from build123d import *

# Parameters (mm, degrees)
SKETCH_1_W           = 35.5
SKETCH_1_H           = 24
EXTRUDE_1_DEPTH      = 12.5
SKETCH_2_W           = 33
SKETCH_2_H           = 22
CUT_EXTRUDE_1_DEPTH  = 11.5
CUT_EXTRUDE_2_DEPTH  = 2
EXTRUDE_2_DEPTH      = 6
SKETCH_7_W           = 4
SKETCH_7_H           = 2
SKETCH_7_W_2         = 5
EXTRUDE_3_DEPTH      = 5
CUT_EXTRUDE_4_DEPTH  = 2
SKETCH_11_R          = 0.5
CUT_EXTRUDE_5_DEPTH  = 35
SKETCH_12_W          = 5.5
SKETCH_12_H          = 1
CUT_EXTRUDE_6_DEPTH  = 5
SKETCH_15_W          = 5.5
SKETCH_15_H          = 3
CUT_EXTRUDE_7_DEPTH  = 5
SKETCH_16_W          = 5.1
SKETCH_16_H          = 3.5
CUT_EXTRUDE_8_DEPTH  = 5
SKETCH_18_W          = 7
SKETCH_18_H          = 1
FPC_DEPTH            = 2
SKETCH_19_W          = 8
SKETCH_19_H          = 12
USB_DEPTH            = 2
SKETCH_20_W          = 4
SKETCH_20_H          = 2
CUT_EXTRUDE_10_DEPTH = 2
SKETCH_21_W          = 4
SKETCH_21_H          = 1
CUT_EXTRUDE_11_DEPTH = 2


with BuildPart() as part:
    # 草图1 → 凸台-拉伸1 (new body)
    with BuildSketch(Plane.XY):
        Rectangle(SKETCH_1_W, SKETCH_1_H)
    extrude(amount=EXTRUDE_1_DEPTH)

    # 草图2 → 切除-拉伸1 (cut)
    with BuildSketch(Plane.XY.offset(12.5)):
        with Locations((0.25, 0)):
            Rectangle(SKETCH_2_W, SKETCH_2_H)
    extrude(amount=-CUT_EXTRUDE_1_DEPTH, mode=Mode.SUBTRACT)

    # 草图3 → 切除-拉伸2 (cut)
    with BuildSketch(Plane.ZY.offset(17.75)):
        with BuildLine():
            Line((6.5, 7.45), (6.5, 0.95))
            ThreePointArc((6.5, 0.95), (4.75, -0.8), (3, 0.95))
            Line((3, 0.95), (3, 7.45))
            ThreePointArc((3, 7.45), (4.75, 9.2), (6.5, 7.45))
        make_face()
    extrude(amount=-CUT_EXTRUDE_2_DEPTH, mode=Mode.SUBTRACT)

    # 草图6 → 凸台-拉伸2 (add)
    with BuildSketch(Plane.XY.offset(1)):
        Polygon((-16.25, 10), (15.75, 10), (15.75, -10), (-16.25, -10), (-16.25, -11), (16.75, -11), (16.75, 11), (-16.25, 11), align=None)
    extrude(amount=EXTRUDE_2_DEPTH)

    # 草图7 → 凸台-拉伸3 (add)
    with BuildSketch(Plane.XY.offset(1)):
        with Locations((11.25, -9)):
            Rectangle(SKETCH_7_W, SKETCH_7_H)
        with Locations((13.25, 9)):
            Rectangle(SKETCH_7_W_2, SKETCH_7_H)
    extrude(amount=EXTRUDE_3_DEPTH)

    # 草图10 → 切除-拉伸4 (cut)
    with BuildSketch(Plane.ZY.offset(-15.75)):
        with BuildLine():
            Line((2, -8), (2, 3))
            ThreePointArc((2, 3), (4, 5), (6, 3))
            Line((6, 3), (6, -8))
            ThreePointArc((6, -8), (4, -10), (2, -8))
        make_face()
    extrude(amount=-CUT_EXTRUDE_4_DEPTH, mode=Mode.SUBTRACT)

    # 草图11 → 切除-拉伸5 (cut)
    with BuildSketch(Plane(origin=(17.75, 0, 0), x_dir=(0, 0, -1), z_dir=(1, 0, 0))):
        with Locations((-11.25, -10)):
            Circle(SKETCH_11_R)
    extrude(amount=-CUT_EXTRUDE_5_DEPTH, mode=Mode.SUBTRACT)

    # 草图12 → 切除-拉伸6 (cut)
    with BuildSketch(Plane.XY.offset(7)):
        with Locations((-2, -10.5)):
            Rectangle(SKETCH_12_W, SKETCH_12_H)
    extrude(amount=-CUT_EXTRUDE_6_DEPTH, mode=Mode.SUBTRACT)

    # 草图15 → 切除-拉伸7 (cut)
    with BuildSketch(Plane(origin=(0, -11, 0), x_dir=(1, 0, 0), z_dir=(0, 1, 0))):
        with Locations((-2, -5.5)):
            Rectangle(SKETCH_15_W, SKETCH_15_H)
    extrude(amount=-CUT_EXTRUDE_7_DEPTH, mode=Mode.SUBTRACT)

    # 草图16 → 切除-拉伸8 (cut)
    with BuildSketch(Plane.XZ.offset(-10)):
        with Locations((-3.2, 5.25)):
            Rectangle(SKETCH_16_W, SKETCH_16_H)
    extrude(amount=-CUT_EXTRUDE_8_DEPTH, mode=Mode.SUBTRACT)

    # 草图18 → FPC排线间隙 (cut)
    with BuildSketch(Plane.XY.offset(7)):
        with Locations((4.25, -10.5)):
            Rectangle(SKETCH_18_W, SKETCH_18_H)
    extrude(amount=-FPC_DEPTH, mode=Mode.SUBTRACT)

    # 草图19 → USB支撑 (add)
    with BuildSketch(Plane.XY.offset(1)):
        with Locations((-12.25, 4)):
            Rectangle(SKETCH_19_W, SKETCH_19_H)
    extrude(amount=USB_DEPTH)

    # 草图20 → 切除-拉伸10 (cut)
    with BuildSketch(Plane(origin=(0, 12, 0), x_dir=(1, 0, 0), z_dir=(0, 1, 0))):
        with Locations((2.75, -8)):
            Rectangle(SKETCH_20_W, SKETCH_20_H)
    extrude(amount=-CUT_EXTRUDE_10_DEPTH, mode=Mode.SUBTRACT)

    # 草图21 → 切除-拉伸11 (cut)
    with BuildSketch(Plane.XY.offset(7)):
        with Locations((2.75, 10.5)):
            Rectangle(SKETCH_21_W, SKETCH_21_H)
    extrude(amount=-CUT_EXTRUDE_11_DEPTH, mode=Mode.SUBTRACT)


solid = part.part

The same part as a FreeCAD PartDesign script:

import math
import FreeCAD as App
import Part
import Sketcher

V = App.Vector


def add_polygon(sketch, points):
    """Adds a closed chain of lines whose ends are joined by coincident constraints."""
    first, n = sketch.GeometryCount, len(points)
    for a, b in zip(points, points[1:] + points[:1]):
        sketch.addGeometry(Part.LineSegment(App.Vector(*a, 0), App.Vector(*b, 0)), False)
    for i in range(n):
        sketch.addConstraint(Sketcher.Constraint("Coincident", first + i, 2, first + (i + 1) % n, 1))

doc = App.newDocument("Part")
body = doc.addObject("PartDesign::Body", "Body")

sketch1 = body.newObject("Sketcher::SketchObject", "Sketch")
sketch1.AttachmentSupport = (doc.getObject("XY_Plane"), [""])
sketch1.MapMode = "FlatFace"
add_polygon(sketch1, [(-18, 12), (-18, -12), (18, -12), (18, 12)])
sketch1.addConstraint(Sketcher.Constraint("Vertical", 0))
sketch1.addConstraint(Sketcher.Constraint("Horizontal", 1))
sketch1.addConstraint(Sketcher.Constraint("Vertical", 2))
sketch1.addConstraint(Sketcher.Constraint("Horizontal", 3))
sketch1.addConstraint(Sketcher.Constraint("Symmetric", 0, 2, 2, 2, -1, 1))
sketch1.addConstraint(Sketcher.Constraint("DistanceY", 0, 2, 0, 1, 24.0))
sketch1.addConstraint(Sketcher.Constraint("DistanceX", 1, 1, 1, 2, 35.5))
pad1 = body.newObject("PartDesign::Pad", "Pad")
pad1.Profile = sketch1
pad1.Length = 12.5

sketch2 = body.newObject("Sketcher::SketchObject", "Sketch001")
sketch2.AttachmentSupport = (doc.getObject("XY_Plane"), [""])
sketch2.MapMode = "FlatFace"
sketch2.AttachmentOffset = App.Placement(V(0, 0, 12.5), App.Rotation())
add_polygon(sketch2, [(-16, 11), (-16, -11), (17, -11), (17, 11)])
sketch2.addConstraint(Sketcher.Constraint("Vertical", 0))
sketch2.addConstraint(Sketcher.Constraint("Horizontal", 1))
sketch2.addConstraint(Sketcher.Constraint("Vertical", 2))
sketch2.addConstraint(Sketcher.Constraint("Horizontal", 3))
sketch2.addConstraint(Sketcher.Constraint("DistanceX", 1, 1, 1, 2, 33.0))
sketch2.addConstraint(Sketcher.Constraint("DistanceY", 0, 2, 0, 1, 22.0))
sketch2.addConstraint(Sketcher.Constraint("DistanceY", 0, 2, -1, 1, 11.0))
sketch2.addConstraint(Sketcher.Constraint("DistanceX", 0, 2, -1, 1, 16.25))
pocket1 = body.newObject("PartDesign::Pocket", "Pocket")
pocket1.Profile = sketch2
pocket1.Length = 11.5

sketch3 = body.newObject("Sketcher::SketchObject", "Sketch002")
sketch3.AttachmentSupport = (doc.getObject("YZ_Plane"), [""])
sketch3.MapMode = "FlatFace"
sketch3.AttachmentOffset = App.Placement(V(0, 0, -17.75), App.Rotation())
sketch3.addGeometry(Part.LineSegment(V(0.9, 6.5, 0), V(7.5, 6.5, 0)), False)
sketch3.addGeometry(Part.ArcOfCircle(Part.Circle(V(7.5, 4.8, 0), V(0, 0, 1), 1.8), math.radians(-90), math.radians(90)), False)
sketch3.addGeometry(Part.LineSegment(V(7.5, 3, 0), V(0.9, 3, 0)), False)
sketch3.addGeometry(Part.ArcOfCircle(Part.Circle(V(0.9, 4.8, 0), V(0, 0, 1), 1.8), math.radians(90), math.radians(270)), False)
sketch3.addConstraint(Sketcher.Constraint("Tangent", 0, 2, 1, 2))
sketch3.addConstraint(Sketcher.Constraint("Tangent", 1, 1, 2, 1))
sketch3.addConstraint(Sketcher.Constraint("Tangent", 2, 2, 3, 2))
sketch3.addConstraint(Sketcher.Constraint("Tangent", 3, 1, 0, 1))
sketch3.addConstraint(Sketcher.Constraint("Horizontal", 0))
sketch3.addConstraint(Sketcher.Constraint("Horizontal", 2))
sketch3.addConstraint(Sketcher.Constraint("Radius", 1, 1.75))
sketch3.addConstraint(Sketcher.Constraint("DistanceX", 0, 1, 0, 2, 6.5))
sketch3.addConstraint(Sketcher.Constraint("DistanceY", -1, 1, 1, 1, 3.0))
sketch3.addConstraint(Sketcher.Constraint("DistanceX", -1, 1, 1, 3, 7.45))
pocket2 = body.newObject("PartDesign::Pocket", "Pocket001")
pocket2.Profile = sketch3
pocket2.Length = 2
pocket2.Reversed = True

sketch4 = body.newObject("Sketcher::SketchObject", "Sketch003")
sketch4.AttachmentSupport = (doc.getObject("XY_Plane"), [""])
sketch4.MapMode = "FlatFace"
sketch4.AttachmentOffset = App.Placement(V(0, 0, 1), App.Rotation())
add_polygon(sketch4, [(-16.2, 10), (15.8, 10), (15.8, -10), (-16.2, -10), (-16.2, -11), (16.8, -11), (16.8, 11), (-16.2, 11)])
sketch4.addConstraint(Sketcher.Constraint("Horizontal", 0))
sketch4.addConstraint(Sketcher.Constraint("Vertical", 1))
sketch4.addConstraint(Sketcher.Constraint("Horizontal", 2))
sketch4.addConstraint(Sketcher.Constraint("Vertical", 3))
sketch4.addConstraint(Sketcher.Constraint("Horizontal", 4))
sketch4.addConstraint(Sketcher.Constraint("Vertical", 5))
sketch4.addConstraint(Sketcher.Constraint("Horizontal", 6))
sketch4.addConstraint(Sketcher.Constraint("Vertical", 7))
sketch4.addConstraint(Sketcher.Constraint("Symmetric", 3, 2, 6, 2, -1))
sketch4.addConstraint(Sketcher.Constraint("Equal", 3, 7))
sketch4.addConstraint(Sketcher.Constraint("DistanceX", 0, 1, 0, 2, 32.0))
sketch4.addConstraint(Sketcher.Constraint("DistanceX", 4, 1, 4, 2, 33.0))
sketch4.addConstraint(Sketcher.Constraint("DistanceY", 1, 2, 1, 1, 20.0))
sketch4.addConstraint(Sketcher.Constraint("DistanceY", 3, 2, 3, 1, 1.0))
sketch4.addConstraint(Sketcher.Constraint("DistanceX", -1, 1, 0, 2, 15.75))
pad2 = body.newObject("PartDesign::Pad", "Pad001")
pad2.Profile = sketch4
pad2.Length = 6

sketch5 = body.newObject("Sketcher::SketchObject", "Sketch004")
sketch5.AttachmentSupport = (doc.getObject("XY_Plane"), [""])
sketch5.MapMode = "FlatFace"
sketch5.AttachmentOffset = App.Placement(V(0, 0, 1), App.Rotation())
add_polygon(sketch5, [(9.2, -8), (9.2, -10), (13.2, -10), (13.2, -8)])
add_polygon(sketch5, [(10.8, 10), (10.8, 8), (15.8, 8), (15.8, 10)])
sketch5.addConstraint(Sketcher.Constraint("Vertical", 0))
sketch5.addConstraint(Sketcher.Constraint("Horizontal", 1))
sketch5.addConstraint(Sketcher.Constraint("Vertical", 2))
sketch5.addConstraint(Sketcher.Constraint("Horizontal", 3))
sketch5.addConstraint(Sketcher.Constraint("Vertical", 4))
sketch5.addConstraint(Sketcher.Constraint("Horizontal", 5))
sketch5.addConstraint(Sketcher.Constraint("Vertical", 6))
sketch5.addConstraint(Sketcher.Constraint("Horizontal", 7))
sketch5.addConstraint(Sketcher.Constraint("Equal", 2, 4))
sketch5.addConstraint(Sketcher.Constraint("DistanceX", 1, 1, 1, 2, 4.0))
sketch5.addConstraint(Sketcher.Constraint("DistanceX", 5, 1, 5, 2, 5.0))
sketch5.addConstraint(Sketcher.Constraint("DistanceY", 0, 2, 0, 1, 2.0))
sketch5.addConstraint(Sketcher.Constraint("DistanceY", 0, 2, -1, 1, 10.0))
sketch5.addConstraint(Sketcher.Constraint("DistanceY", -1, 1, 4, 2, 8.0))
sketch5.addConstraint(Sketcher.Constraint("DistanceX", 3, 2, 4, 2, 1.5))
sketch5.addConstraint(Sketcher.Constraint("DistanceX", -1, 1, 0, 2, 9.25))
pad3 = body.newObject("PartDesign::Pad", "Pad002")
pad3.Profile = sketch5
pad3.Length = 5

sketch6 = body.newObject("Sketcher::SketchObject", "Sketch005")
sketch6.AttachmentSupport = (doc.getObject("YZ_Plane"), [""])
sketch6.MapMode = "FlatFace"
sketch6.AttachmentOffset = App.Placement(V(0, 0, 15.75), App.Rotation())
sketch6.addGeometry(Part.LineSegment(V(3, 2, 0), V(-8, 2, 0)), False)
sketch6.addGeometry(Part.ArcOfCircle(Part.Circle(V(-8, 4, 0), V(0, 0, 1), 2), math.radians(90), math.radians(270)), False)
sketch6.addGeometry(Part.LineSegment(V(-8, 6, 0), V(3, 6, 0)), False)
sketch6.addGeometry(Part.ArcOfCircle(Part.Circle(V(3, 4, 0), V(0, 0, 1), 2), math.radians(-90), math.radians(90)), False)
sketch6.addConstraint(Sketcher.Constraint("Tangent", 0, 2, 1, 2))
sketch6.addConstraint(Sketcher.Constraint("Tangent", 1, 1, 2, 1))
sketch6.addConstraint(Sketcher.Constraint("Tangent", 2, 2, 3, 2))
sketch6.addConstraint(Sketcher.Constraint("Tangent", 3, 1, 0, 1))
sketch6.addConstraint(Sketcher.Constraint("Horizontal", 0))
sketch6.addConstraint(Sketcher.Constraint("Horizontal", 2))
sketch6.addConstraint(Sketcher.Constraint("Radius", 1, 2.0))
sketch6.addConstraint(Sketcher.Constraint("DistanceX", 0, 2, 0, 1, 11.0))
sketch6.addConstraint(Sketcher.Constraint("DistanceX", 1, 3, -1, 1, 8.0))
sketch6.addConstraint(Sketcher.Constraint("DistanceY", -1, 1, 1, 3, 4.0))
pocket3 = body.newObject("PartDesign::Pocket", "Pocket002")
pocket3.Profile = sketch6
pocket3.Length = 2
pocket3.Reversed = True

sketch7 = body.newObject("Sketcher::SketchObject", "Sketch006")
sketch7.AttachmentSupport = (doc.getObject("YZ_Plane"), [""])
sketch7.MapMode = "FlatFace"
sketch7.AttachmentOffset = App.Placement(V(0, 0, 17.75), App.Rotation())
sketch7.addGeometry(Part.Circle(V(-10, 11.2, 0), V(0, 0, 1), 0.5), False)
sketch7.addConstraint(Sketcher.Constraint("Diameter", 0, 1.0))
sketch7.addConstraint(Sketcher.Constraint("DistanceX", 0, 3, -1, 1, 10.0))
sketch7.addConstraint(Sketcher.Constraint("DistanceY", -1, 1, 0, 3, 11.25))
pocket4 = body.newObject("PartDesign::Pocket", "Pocket003")
pocket4.Profile = sketch7
pocket4.Length = 35

sketch8 = body.newObject("Sketcher::SketchObject", "Sketch007")
sketch8.AttachmentSupport = (doc.getObject("XY_Plane"), [""])
sketch8.MapMode = "FlatFace"
sketch8.AttachmentOffset = App.Placement(V(0, 0, 7), App.Rotation())
add_polygon(sketch8, [(-4.8, -10), (-4.8, -11), (0.8, -11), (0.8, -10)])
sketch8.addConstraint(Sketcher.Constraint("Vertical", 0))
sketch8.addConstraint(Sketcher.Constraint("Horizontal", 1))
sketch8.addConstraint(Sketcher.Constraint("Vertical", 2))
sketch8.addConstraint(Sketcher.Constraint("Horizontal", 3))
sketch8.addConstraint(Sketcher.Constraint("DistanceY", 0, 2, 0, 1, 1.0))
sketch8.addConstraint(Sketcher.Constraint("DistanceX", 1, 1, 1, 2, 5.5))
sketch8.addConstraint(Sketcher.Constraint("DistanceY", 0, 2, -1, 1, 11.0))
sketch8.addConstraint(Sketcher.Constraint("DistanceX", 0, 2, -1, 1, 4.75))
pocket5 = body.newObject("PartDesign::Pocket", "Pocket004")
pocket5.Profile = sketch8
pocket5.Length = 5

sketch9 = body.newObject("Sketcher::SketchObject", "Sketch008")
sketch9.AttachmentSupport = (doc.getObject("XZ_Plane"), [""])
sketch9.MapMode = "FlatFace"
sketch9.AttachmentOffset = App.Placement(V(0, 0, 11), App.Rotation())
add_polygon(sketch9, [(-4.8, 4), (-4.8, 7), (0.8, 7), (0.8, 4)])
sketch9.addConstraint(Sketcher.Constraint("Vertical", 0))
sketch9.addConstraint(Sketcher.Constraint("Horizontal", 1))
sketch9.addConstraint(Sketcher.Constraint("Vertical", 2))
sketch9.addConstraint(Sketcher.Constraint("Horizontal", 3))
sketch9.addConstraint(Sketcher.Constraint("DistanceY", 0, 1, 0, 2, 3.0))
sketch9.addConstraint(Sketcher.Constraint("DistanceX", 1, 1, 1, 2, 5.5))
sketch9.addConstraint(Sketcher.Constraint("DistanceY", -1, 1, 0, 2, 7.0))
sketch9.addConstraint(Sketcher.Constraint("DistanceX", 0, 2, -1, 1, 4.75))
pocket6 = body.newObject("PartDesign::Pocket", "Pocket005")
pocket6.Profile = sketch9
pocket6.Length = 5
pocket6.Reversed = True

sketch10 = body.newObject("Sketcher::SketchObject", "Sketch009")
sketch10.AttachmentSupport = (doc.getObject("XZ_Plane"), [""])
sketch10.MapMode = "FlatFace"
sketch10.AttachmentOffset = App.Placement(V(0, 0, -10), App.Rotation())
add_polygon(sketch10, [(-5.8, 7), (-5.8, 3.5), (-0.7, 3.5), (-0.7, 7)])
sketch10.addConstraint(Sketcher.Constraint("Vertical", 0))
sketch10.addConstraint(Sketcher.Constraint("Horizontal", 1))
sketch10.addConstraint(Sketcher.Constraint("Vertical", 2))
sketch10.addConstraint(Sketcher.Constraint("Horizontal", 3))
sketch10.addConstraint(Sketcher.Constraint("DistanceX", 1, 1, 1, 2, 5.1))
sketch10.addConstraint(Sketcher.Constraint("DistanceY", 0, 2, 0, 1, 3.5))
sketch10.addConstraint(Sketcher.Constraint("DistanceY", -1, 1, 2, 2, 7.0))
sketch10.addConstraint(Sketcher.Constraint("DistanceX", 0, 2, -1, 1, 5.75))
pocket7 = body.newObject("PartDesign::Pocket", "Pocket006")
pocket7.Profile = sketch10
pocket7.Length = 5

sketch11 = body.newObject("Sketcher::SketchObject", "Sketch010")
sketch11.AttachmentSupport = (doc.getObject("XY_Plane"), [""])
sketch11.MapMode = "FlatFace"
sketch11.AttachmentOffset = App.Placement(V(0, 0, 7), App.Rotation())
add_polygon(sketch11, [(0.8, -10), (0.8, -11), (7.8, -11), (7.8, -10)])
sketch11.addConstraint(Sketcher.Constraint("Vertical", 0))
sketch11.addConstraint(Sketcher.Constraint("Horizontal", 1))
sketch11.addConstraint(Sketcher.Constraint("Vertical", 2))
sketch11.addConstraint(Sketcher.Constraint("Horizontal", 3))
sketch11.addConstraint(Sketcher.Constraint("DistanceX", 1, 1, 1, 2, 7.0))
sketch11.addConstraint(Sketcher.Constraint("DistanceY", 0, 2, 0, 1, 1.0))
sketch11.addConstraint(Sketcher.Constraint("DistanceY", 0, 2, -1, 1, 11.0))
sketch11.addConstraint(Sketcher.Constraint("DistanceX", -1, 1, 0, 2, 0.75))
pocket8 = body.newObject("PartDesign::Pocket", "Pocket007")
pocket8.Profile = sketch11
pocket8.Length = 2

sketch12 = body.newObject("Sketcher::SketchObject", "Sketch011")
sketch12.AttachmentSupport = (doc.getObject("XY_Plane"), [""])
sketch12.MapMode = "FlatFace"
sketch12.AttachmentOffset = App.Placement(V(0, 0, 1), App.Rotation())
add_polygon(sketch12, [(-16, 10), (-16, -2), (-8, -2), (-8, 10)])
sketch12.addConstraint(Sketcher.Constraint("Vertical", 0))
sketch12.addConstraint(Sketcher.Constraint("Horizontal", 1))
sketch12.addConstraint(Sketcher.Constraint("Vertical", 2))
sketch12.addConstraint(Sketcher.Constraint("Horizontal", 3))
sketch12.addConstraint(Sketcher.Constraint("DistanceX", 1, 1, 1, 2, 8.0))
sketch12.addConstraint(Sketcher.Constraint("DistanceY", 0, 2, 0, 1, 12.0))
sketch12.addConstraint(Sketcher.Constraint("DistanceY", 0, 2, -1, 1, 2.0))
sketch12.addConstraint(Sketcher.Constraint("DistanceX", 0, 2, -1, 1, 16.25))
pad4 = body.newObject("PartDesign::Pad", "Pad003")
pad4.Profile = sketch12
pad4.Length = 2

sketch13 = body.newObject("Sketcher::SketchObject", "Sketch012")
sketch13.AttachmentSupport = (doc.getObject("XZ_Plane"), [""])
sketch13.MapMode = "FlatFace"
sketch13.AttachmentOffset = App.Placement(V(0, 0, -12), App.Rotation())
add_polygon(sketch13, [(0.8, 7), (0.8, 9), (4.8, 9), (4.8, 7)])
sketch13.addConstraint(Sketcher.Constraint("Vertical", 0))
sketch13.addConstraint(Sketcher.Constraint("Horizontal", 1))
sketch13.addConstraint(Sketcher.Constraint("Vertical", 2))
sketch13.addConstraint(Sketcher.Constraint("Horizontal", 3))
sketch13.addConstraint(Sketcher.Constraint("DistanceX", 1, 1, 1, 2, 4.0))
sketch13.addConstraint(Sketcher.Constraint("DistanceY", 0, 1, 0, 2, 2.0))
sketch13.addConstraint(Sketcher.Constraint("DistanceY", -1, 1, 0, 2, 9.0))
sketch13.addConstraint(Sketcher.Constraint("DistanceX", -1, 1, 0, 2, 0.75))
pocket9 = body.newObject("PartDesign::Pocket", "Pocket008")
pocket9.Profile = sketch13
pocket9.Length = 2
pocket9.Reversed = True

sketch14 = body.newObject("Sketcher::SketchObject", "Sketch013")
sketch14.AttachmentSupport = (doc.getObject("XY_Plane"), [""])
sketch14.MapMode = "FlatFace"
sketch14.AttachmentOffset = App.Placement(V(0, 0, 7), App.Rotation())
add_polygon(sketch14, [(0.8, 11), (0.8, 10), (4.8, 10), (4.8, 11)])
sketch14.addConstraint(Sketcher.Constraint("Vertical", 0))
sketch14.addConstraint(Sketcher.Constraint("Horizontal", 1))
sketch14.addConstraint(Sketcher.Constraint("Vertical", 2))
sketch14.addConstraint(Sketcher.Constraint("Horizontal", 3))
sketch14.addConstraint(Sketcher.Constraint("DistanceX", 1, 1, 1, 2, 4.0))
sketch14.addConstraint(Sketcher.Constraint("DistanceY", 0, 2, 0, 1, 1.0))
sketch14.addConstraint(Sketcher.Constraint("DistanceY", -1, 1, 0, 2, 10.0))
sketch14.addConstraint(Sketcher.Constraint("DistanceX", -1, 1, 0, 2, 0.75))
pocket10 = body.newObject("PartDesign::Pocket", "Pocket009")
pocket10.Profile = sketch14
pocket10.Length = 2

doc.recompute()
